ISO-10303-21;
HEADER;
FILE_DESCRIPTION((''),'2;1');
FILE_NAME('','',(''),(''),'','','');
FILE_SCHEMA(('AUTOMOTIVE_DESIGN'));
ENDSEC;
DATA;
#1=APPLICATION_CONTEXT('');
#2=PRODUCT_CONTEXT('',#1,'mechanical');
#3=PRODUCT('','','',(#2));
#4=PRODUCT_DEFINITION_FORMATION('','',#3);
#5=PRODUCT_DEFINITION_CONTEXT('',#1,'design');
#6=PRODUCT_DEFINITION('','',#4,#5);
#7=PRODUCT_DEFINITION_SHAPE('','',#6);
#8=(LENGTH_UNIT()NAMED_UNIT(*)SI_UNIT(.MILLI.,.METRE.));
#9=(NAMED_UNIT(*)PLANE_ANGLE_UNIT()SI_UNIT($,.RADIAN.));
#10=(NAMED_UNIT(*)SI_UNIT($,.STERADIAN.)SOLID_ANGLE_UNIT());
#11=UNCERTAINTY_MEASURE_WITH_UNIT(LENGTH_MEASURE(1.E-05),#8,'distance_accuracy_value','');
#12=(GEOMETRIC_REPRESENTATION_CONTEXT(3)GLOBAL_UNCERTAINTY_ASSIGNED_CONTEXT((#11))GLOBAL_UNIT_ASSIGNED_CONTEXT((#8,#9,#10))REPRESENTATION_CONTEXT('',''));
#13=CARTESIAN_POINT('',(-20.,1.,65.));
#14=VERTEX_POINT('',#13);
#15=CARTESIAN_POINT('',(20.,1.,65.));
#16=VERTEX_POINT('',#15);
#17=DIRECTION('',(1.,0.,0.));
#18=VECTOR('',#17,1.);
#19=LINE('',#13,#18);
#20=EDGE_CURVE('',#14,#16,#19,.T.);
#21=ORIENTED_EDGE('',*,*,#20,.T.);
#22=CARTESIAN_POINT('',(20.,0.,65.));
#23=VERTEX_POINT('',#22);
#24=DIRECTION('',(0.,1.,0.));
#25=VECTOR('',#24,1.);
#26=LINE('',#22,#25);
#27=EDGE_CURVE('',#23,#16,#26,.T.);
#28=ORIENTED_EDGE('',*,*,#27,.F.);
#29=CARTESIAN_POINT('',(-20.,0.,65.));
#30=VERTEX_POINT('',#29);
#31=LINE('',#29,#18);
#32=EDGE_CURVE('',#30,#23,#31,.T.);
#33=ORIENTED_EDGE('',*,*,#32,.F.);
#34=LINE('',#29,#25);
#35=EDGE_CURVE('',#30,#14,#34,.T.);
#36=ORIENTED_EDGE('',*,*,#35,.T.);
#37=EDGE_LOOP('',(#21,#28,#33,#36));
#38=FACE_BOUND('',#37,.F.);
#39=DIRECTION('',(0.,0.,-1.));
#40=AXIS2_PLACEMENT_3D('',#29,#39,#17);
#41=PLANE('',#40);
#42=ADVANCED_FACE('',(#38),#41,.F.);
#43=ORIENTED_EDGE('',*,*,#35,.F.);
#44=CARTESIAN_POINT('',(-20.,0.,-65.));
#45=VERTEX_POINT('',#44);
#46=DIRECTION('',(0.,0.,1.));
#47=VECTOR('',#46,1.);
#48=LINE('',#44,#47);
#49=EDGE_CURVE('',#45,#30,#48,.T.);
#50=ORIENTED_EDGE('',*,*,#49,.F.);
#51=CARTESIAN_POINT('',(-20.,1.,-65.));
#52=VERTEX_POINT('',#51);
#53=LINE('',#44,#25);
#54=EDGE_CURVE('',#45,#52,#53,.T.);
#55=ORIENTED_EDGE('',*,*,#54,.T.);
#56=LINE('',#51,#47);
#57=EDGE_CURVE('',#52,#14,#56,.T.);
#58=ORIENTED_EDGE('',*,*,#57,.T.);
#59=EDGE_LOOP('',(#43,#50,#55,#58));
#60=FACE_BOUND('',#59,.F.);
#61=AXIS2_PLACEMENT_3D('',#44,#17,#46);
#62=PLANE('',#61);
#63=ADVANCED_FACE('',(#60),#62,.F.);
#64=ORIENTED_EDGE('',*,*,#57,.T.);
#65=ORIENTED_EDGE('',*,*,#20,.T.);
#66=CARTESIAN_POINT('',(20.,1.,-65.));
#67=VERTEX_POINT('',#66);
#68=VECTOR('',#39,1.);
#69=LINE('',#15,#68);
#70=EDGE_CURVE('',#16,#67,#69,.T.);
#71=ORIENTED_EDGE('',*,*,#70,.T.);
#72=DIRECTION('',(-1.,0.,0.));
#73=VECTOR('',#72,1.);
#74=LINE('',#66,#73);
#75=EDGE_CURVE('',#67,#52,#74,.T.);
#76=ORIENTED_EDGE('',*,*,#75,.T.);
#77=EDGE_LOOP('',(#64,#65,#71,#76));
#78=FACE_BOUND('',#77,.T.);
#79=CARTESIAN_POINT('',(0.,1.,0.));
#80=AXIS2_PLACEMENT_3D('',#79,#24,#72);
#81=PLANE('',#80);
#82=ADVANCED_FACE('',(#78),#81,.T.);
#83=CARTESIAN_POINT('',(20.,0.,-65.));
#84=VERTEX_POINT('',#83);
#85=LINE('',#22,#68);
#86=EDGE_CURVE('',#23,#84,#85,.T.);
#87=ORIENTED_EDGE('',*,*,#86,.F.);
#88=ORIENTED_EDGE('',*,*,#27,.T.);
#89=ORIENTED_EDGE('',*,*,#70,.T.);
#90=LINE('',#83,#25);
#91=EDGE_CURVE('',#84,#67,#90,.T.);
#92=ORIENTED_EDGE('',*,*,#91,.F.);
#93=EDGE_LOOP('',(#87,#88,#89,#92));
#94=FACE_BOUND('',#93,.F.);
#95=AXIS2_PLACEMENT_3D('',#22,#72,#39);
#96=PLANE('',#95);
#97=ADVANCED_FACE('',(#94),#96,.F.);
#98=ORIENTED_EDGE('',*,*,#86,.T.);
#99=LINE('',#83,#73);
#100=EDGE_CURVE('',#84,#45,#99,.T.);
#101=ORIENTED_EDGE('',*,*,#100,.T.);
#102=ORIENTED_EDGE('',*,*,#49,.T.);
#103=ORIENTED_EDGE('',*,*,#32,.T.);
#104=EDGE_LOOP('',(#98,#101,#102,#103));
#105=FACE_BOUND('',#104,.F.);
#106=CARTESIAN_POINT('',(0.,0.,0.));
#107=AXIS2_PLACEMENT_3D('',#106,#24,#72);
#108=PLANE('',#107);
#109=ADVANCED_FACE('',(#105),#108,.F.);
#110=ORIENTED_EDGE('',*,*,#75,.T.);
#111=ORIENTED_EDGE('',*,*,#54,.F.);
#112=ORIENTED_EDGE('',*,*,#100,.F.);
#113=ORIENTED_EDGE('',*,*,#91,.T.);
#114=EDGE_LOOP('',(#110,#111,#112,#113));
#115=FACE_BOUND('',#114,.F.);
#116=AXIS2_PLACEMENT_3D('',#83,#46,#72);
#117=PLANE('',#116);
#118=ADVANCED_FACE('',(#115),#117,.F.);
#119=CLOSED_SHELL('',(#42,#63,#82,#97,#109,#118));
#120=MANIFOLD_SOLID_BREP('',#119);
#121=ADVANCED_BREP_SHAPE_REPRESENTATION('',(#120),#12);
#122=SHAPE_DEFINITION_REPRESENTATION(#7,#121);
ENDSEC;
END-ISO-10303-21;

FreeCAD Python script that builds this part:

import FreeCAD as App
import Part
import Sketcher
from FreeCAD import Vector
Q = App.Units.Quantity

doc = App.newDocument("Part")
body = doc.addObject("PartDesign::Body", "Body")

sketch1 = body.newObject("Sketcher::SketchObject", "Sketch")
sketch1.AttachmentSupport = (doc.getObject("XZ_Plane"), [""])
sketch1.MapMode = "FlatFace"
sketch1.addGeometry([
    Part.LineSegment(Vector(-20, -65, 0), Vector(-20, 65, 0)),
    Part.LineSegment(Vector(-20, 65, 0), Vector(20, 65, 0)),
    Part.LineSegment(Vector(20, 65, 0), Vector(20, -65, 0)),
    Part.LineSegment(Vector(20, -65, 0), Vector(-20, -65, 0)),
], False)
sketch1.addConstraint([
    Sketcher.Constraint("Coincident", 0, 2, 1, 1),
    Sketcher.Constraint("Coincident", 1, 2, 2, 1),
    Sketcher.Constraint("Coincident", 2, 2, 3, 1),
    Sketcher.Constraint("Coincident", 3, 2, 0, 1),
    Sketcher.Constraint("Vertical", 0),
    Sketcher.Constraint("Horizontal", 1),
    Sketcher.Constraint("Vertical", 2),
    Sketcher.Constraint("Horizontal", 3),
    Sketcher.Constraint("Symmetric", 0, 2, 2, 2, -1, 1),
    Sketcher.Constraint("DistanceX", 1, 1, 1, 2, Q("40 mm")),
    Sketcher.Constraint("DistanceY", 0, 1, 0, 2, Q("130 mm")),
])
pad1 = body.newObject("PartDesign::Pad", "Pad")
pad1.Profile = sketch1
pad1.Length = 1
pad1.Reversed = True

doc.recompute()
